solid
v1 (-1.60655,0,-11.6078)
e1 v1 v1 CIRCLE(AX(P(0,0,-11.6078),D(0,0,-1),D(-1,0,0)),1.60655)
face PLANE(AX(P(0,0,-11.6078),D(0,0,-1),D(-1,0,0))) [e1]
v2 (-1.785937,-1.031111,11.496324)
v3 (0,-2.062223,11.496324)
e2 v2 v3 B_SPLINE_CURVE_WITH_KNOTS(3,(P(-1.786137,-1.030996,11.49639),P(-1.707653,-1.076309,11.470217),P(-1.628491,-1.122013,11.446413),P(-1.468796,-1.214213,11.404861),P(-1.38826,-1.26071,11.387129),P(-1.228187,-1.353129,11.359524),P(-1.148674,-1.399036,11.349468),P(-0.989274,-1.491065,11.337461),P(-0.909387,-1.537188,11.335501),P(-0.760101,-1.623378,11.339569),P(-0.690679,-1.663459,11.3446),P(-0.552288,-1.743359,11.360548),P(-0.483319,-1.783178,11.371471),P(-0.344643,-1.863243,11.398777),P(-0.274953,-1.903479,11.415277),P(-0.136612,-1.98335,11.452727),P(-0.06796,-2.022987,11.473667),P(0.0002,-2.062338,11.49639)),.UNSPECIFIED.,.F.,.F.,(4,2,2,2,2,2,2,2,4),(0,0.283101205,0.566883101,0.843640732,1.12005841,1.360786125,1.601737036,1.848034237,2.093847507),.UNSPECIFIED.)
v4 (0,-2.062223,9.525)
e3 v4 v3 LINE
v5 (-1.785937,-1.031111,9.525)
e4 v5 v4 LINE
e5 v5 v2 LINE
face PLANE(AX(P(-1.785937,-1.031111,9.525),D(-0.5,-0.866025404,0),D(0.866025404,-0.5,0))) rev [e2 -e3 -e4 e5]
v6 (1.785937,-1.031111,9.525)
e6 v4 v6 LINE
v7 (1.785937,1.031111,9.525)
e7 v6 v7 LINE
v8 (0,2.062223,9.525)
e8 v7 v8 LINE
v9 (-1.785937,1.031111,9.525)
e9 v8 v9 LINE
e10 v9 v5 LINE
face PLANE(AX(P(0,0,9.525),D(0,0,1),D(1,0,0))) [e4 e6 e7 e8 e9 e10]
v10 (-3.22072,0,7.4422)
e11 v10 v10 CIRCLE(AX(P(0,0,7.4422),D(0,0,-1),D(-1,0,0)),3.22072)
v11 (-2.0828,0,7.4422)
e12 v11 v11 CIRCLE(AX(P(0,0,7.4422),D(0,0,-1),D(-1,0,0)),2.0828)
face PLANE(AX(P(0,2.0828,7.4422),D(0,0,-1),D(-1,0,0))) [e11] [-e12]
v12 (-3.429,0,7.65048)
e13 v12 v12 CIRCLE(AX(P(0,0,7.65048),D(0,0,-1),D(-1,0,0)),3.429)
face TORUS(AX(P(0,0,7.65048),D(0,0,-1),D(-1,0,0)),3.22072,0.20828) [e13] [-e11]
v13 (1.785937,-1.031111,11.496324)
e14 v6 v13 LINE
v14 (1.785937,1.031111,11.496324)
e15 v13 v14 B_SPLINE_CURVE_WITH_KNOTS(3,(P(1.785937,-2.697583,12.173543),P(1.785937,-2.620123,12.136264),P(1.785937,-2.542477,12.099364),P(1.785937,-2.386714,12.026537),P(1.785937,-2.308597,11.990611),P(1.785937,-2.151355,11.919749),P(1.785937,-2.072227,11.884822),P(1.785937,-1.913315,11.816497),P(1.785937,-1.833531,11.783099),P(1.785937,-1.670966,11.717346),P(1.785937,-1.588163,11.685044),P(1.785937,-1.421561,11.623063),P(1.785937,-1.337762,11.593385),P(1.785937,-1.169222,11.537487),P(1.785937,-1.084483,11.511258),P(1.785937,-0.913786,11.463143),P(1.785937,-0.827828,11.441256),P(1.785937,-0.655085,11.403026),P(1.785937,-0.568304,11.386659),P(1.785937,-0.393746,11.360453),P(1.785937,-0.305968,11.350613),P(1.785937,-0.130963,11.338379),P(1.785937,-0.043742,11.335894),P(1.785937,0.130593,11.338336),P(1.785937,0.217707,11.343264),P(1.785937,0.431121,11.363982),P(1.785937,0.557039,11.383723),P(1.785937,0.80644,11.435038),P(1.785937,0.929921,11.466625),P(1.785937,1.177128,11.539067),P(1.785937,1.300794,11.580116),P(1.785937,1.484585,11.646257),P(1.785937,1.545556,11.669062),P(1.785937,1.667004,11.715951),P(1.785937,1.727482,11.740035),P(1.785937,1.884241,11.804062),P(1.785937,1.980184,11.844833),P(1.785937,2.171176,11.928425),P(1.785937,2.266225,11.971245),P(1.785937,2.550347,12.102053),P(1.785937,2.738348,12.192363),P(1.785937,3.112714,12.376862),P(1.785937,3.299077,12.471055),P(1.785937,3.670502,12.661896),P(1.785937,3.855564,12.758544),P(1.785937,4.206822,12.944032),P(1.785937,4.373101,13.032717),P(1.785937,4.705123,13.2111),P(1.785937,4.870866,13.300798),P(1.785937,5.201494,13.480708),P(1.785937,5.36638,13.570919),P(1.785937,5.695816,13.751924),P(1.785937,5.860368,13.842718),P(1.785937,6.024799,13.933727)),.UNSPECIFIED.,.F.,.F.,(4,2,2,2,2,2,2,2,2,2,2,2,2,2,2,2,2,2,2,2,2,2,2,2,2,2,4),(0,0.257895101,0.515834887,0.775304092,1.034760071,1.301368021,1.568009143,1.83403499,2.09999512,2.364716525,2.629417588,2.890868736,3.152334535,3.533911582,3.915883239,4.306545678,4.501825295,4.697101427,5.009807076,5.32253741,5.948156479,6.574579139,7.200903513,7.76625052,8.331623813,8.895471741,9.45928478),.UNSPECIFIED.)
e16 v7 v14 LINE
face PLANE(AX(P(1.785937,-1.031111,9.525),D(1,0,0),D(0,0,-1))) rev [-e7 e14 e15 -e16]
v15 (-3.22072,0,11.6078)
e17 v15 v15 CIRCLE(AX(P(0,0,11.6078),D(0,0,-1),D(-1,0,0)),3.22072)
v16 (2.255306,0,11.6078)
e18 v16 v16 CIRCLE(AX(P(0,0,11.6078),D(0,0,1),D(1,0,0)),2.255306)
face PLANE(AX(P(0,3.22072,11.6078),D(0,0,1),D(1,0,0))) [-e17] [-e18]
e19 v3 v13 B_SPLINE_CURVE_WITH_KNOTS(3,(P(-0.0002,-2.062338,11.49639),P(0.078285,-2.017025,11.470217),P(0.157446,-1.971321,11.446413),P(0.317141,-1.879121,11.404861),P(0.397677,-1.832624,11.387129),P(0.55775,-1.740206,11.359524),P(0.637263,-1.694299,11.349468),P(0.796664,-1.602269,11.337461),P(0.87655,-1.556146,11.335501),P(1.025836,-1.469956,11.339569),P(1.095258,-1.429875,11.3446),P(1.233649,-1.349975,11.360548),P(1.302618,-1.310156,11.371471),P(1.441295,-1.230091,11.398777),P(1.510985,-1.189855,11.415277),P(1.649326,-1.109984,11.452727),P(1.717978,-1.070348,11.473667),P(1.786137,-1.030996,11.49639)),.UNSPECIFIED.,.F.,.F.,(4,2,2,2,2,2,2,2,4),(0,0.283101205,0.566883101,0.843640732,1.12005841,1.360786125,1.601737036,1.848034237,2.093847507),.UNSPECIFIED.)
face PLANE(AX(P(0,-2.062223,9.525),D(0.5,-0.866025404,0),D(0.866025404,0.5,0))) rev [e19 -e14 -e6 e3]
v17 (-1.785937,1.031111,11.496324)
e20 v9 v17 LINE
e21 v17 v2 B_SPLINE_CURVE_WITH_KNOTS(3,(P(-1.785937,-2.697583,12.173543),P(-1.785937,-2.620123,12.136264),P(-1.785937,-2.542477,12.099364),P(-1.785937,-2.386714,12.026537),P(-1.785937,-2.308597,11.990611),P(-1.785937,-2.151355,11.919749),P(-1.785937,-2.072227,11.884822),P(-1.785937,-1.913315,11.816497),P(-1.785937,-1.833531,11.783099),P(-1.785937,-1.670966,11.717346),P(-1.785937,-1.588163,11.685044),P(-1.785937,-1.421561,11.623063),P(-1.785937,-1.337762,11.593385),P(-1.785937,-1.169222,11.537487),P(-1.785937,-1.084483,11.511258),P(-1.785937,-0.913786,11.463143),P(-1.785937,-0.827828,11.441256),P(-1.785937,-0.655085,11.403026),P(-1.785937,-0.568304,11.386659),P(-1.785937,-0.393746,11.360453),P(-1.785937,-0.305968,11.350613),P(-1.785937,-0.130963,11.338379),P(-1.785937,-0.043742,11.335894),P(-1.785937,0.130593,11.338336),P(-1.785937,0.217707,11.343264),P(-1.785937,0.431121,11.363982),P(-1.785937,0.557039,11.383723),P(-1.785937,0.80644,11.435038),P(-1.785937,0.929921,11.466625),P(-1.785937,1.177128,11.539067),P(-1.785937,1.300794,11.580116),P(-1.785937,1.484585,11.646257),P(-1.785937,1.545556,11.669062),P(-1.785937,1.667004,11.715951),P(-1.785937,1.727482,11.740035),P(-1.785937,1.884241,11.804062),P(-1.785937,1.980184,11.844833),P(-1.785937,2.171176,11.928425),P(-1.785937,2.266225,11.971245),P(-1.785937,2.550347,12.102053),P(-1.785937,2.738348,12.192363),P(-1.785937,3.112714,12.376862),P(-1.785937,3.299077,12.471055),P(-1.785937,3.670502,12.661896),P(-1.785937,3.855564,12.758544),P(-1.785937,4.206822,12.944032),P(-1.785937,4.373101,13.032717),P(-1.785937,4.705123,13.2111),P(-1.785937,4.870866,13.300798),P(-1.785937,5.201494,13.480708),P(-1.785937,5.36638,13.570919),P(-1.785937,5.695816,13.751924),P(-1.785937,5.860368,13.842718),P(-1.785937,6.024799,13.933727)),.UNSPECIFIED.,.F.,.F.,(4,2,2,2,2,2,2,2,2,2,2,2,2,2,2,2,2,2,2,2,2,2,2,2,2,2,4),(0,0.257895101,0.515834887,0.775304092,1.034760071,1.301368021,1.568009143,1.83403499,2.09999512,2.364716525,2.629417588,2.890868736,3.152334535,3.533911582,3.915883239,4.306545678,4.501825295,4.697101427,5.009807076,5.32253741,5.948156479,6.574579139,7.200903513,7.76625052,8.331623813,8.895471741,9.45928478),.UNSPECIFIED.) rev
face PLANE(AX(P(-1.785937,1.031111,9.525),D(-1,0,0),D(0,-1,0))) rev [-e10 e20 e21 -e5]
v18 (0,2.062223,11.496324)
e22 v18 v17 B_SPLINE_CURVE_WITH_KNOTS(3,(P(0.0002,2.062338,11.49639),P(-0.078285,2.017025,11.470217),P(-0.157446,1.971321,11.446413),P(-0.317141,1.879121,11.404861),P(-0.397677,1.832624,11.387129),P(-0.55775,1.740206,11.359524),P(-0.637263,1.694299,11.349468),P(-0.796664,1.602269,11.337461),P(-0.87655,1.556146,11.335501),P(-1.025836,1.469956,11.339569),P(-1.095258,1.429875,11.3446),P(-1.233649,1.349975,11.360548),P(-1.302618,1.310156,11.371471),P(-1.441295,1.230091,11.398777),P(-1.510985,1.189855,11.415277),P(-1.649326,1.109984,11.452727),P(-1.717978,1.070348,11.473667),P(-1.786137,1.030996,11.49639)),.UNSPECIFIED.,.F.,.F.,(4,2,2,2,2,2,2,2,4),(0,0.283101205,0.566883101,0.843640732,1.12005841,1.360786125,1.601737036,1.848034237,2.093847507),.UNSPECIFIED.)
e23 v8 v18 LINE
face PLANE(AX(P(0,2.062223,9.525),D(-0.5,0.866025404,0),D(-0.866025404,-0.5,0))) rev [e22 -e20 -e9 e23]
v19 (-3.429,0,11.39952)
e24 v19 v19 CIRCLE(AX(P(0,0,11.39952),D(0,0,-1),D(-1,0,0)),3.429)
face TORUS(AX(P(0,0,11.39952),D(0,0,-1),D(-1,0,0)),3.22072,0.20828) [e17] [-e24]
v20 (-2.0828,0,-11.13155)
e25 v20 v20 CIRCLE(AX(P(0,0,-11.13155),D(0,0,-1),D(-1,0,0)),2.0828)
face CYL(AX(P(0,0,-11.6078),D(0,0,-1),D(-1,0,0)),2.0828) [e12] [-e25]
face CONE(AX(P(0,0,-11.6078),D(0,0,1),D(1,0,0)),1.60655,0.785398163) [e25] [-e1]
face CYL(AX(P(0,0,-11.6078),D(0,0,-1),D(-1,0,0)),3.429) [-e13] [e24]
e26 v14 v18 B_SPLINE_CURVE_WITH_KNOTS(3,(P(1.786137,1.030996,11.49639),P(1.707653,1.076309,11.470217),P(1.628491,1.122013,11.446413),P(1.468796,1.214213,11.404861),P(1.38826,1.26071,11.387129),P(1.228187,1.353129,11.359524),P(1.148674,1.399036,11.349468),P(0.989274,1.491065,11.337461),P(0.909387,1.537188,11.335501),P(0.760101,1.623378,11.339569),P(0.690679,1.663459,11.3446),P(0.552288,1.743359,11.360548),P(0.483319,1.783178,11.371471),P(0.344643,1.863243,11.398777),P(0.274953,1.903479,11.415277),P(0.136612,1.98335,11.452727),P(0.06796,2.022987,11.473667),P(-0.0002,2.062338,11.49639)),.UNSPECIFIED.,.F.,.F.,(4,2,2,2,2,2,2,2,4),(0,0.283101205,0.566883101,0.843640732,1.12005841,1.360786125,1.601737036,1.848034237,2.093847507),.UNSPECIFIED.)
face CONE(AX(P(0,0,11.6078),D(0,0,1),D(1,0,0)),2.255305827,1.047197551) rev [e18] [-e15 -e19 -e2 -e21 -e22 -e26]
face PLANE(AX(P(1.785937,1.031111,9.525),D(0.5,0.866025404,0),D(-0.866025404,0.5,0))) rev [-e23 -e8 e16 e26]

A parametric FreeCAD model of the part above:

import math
import FreeCAD as App
import Part
import Sketcher
Q = App.Units.Quantity

doc = App.newDocument("Part")
body = doc.addObject("PartDesign::Body", "Body")

# Sketch on YZ plane
sketch1 = body.newObject("Sketcher::SketchObject", "Sketch")
sketch1.AttachmentSupport = (doc.getObject("YZ_Plane"), [""])
sketch1.MapMode = "FlatFace"
sketch1.addGeometry([
    Part.LineSegment(App.Vector(0, -11.61, 0), App.Vector(1.61, -11.61, 0)),  # 0
    Part.LineSegment(App.Vector(1.61, -11.61, 0), App.Vector(2.08, -11.13, 0)),  # 1
    Part.LineSegment(App.Vector(2.08, -11.13, 0), App.Vector(2.08, 7.44, 0)),  # 2
    Part.LineSegment(App.Vector(2.08, 7.44, 0), App.Vector(3.22, 7.44, 0)),  # 3
    Part.ArcOfCircle(Part.Circle(App.Vector(3.22, 7.65, 0), App.Vector(0, 0, 1), 0.21), math.radians(-90), math.radians(0)),  # 4
    Part.LineSegment(App.Vector(3.43, 7.65, 0), App.Vector(3.43, 11.4, 0)),  # 5
    Part.ArcOfCircle(Part.Circle(App.Vector(3.22, 11.4, 0), App.Vector(0, 0, 1), 0.21), math.radians(0), math.radians(90)),  # 6
    Part.LineSegment(App.Vector(3.22, 11.61, 0), App.Vector(0, 11.61, 0)),  # 7
    Part.LineSegment(App.Vector(0, 11.61, 0), App.Vector(0, -11.61, 0)),  # 8
], False)
sketch1.addConstraint([
    Sketcher.Constraint("Coincident", 0, 2, 1, 1),
    Sketcher.Constraint("Coincident", 1, 2, 2, 1),
    Sketcher.Constraint("Coincident", 2, 2, 3, 1),
    Sketcher.Constraint("Tangent", 3, 2, 4, 1),
    Sketcher.Constraint("Tangent", 4, 2, 5, 1),
    Sketcher.Constraint("Tangent", 5, 2, 6, 1),
    Sketcher.Constraint("Tangent", 6, 2, 7, 1),
    Sketcher.Constraint("Coincident", 7, 2, 8, 1),
    Sketcher.Constraint("Coincident", 8, 2, 0, 1),
    Sketcher.Constraint("Horizontal", 0),
    Sketcher.Constraint("Vertical", 2),
    Sketcher.Constraint("Horizontal", 3),
    Sketcher.Constraint("Vertical", 5),
    Sketcher.Constraint("Horizontal", 7),
    Sketcher.Constraint("Vertical", 8),
    Sketcher.Constraint("Equal", 4, 6),
    Sketcher.Constraint("Symmetric", 7, 2, 8, 2, -1, 1),
    Sketcher.Constraint("Angle", 1, Q("45 deg")),
    Sketcher.Constraint("Radius", 4, Q("0.0082 in")),
    Sketcher.Constraint("DistanceY", 8, 2, 8, 1, Q("0.914 in")),
    Sketcher.Constraint("DistanceY", 0, 2, 2, 2, Q("0.75 in")),
    Sketcher.Constraint("DistanceX", 3, 1, 3, 2, Q("0.0448 in")),
    Sketcher.Constraint("DistanceX", 7, 2, 7, 1, Q("0.1268 in")),
    Sketcher.Constraint("DistanceX", 0, 1, 0, 2, Q("1.60655 mm")),
])
revolution = body.newObject("PartDesign::Revolution", "Revolution")
revolution.Profile = sketch1
revolution.ReferenceAxis = (sketch1, ["V_Axis"])
revolution.Angle = 360

# Sketch on XY plane
sketch2 = body.newObject("Sketcher::SketchObject", "Sketch001")
sketch2.AttachmentSupport = (doc.getObject("XY_Plane"), [""])
sketch2.MapMode = "FlatFace"
sketch2.AttachmentOffset = App.Placement(App.Vector(0, 0, 0.457 * 25.4), App.Rotation())
sketch2.addGeometry([
    Part.LineSegment(App.Vector(-1.8, 1, 0), App.Vector(-1.8, -1, 0)),  # 0
    Part.LineSegment(App.Vector(-1.8, -1, 0), App.Vector(0, -2.1, 0)),  # 1
    Part.LineSegment(App.Vector(0, -2.1, 0), App.Vector(1.8, -1, 0)),  # 2
    Part.LineSegment(App.Vector(1.8, -1, 0), App.Vector(1.8, 1, 0)),  # 3
    Part.LineSegment(App.Vector(1.8, 1, 0), App.Vector(0, 2.1, 0)),  # 4
    Part.LineSegment(App.Vector(0, 2.1, 0), App.Vector(-1.8, 1, 0)),  # 5
], False)
sketch2.addConstraint([
    Sketcher.Constraint("Coincident", 0, 2, 1, 1),
    Sketcher.Constraint("Coincident", 1, 2, 2, 1),
    Sketcher.Constraint("Coincident", 2, 2, 3, 1),
    Sketcher.Constraint("Coincident", 3, 2, 4, 1),
    Sketcher.Constraint("Coincident", 4, 2, 5, 1),
    Sketcher.Constraint("Coincident", 5, 2, 0, 1),
    Sketcher.Constraint("Vertical", 0),
    Sketcher.Constraint("Vertical", 3),
    Sketcher.Constraint("Symmetric", 0, 2, 3, 2, -1, 1),
    Sketcher.Constraint("Symmetric", 1, 2, 4, 2, -1, 1),
    Sketcher.Constraint("PointOnObject", 1, 2, -2),
    Sketcher.Constraint("Parallel", 2, 5),
    Sketcher.Constraint("Horizontal", 0, 2, 2, 2),
    Sketcher.Constraint("Angle", 1, Q("-30 deg")),
    Sketcher.Constraint("DistanceX", 0, 2, 2, 2, Q("0.140625 in")),
    Sketcher.Constraint("DistanceY", 0, 2, 0, 1, Q("2.062223 mm")),
])
pocket1 = body.newObject("PartDesign::Pocket", "Pocket")
pocket1.Profile = sketch2
pocket1.Length = Q("0.082 in")

# Sketch on YZ plane
sketch3 = body.newObject("Sketcher::SketchObject", "Sketch002")
sketch3.AttachmentSupport = (doc.getObject("YZ_Plane"), [""])
sketch3.MapMode = "FlatFace"
sketch3.addGeometry([
    Part.LineSegment(App.Vector(0, 11.6, 0), App.Vector(-2.3, 11.6, 0)),
    Part.LineSegment(App.Vector(-2.3, 11.6, 0), App.Vector(0, 10.3, 0)),
    Part.LineSegment(App.Vector(0, 10.3, 0), App.Vector(0, 11.6, 0)),
], False)
sketch3.addConstraint([
    Sketcher.Constraint("Coincident", 0, 2, 1, 1),
    Sketcher.Constraint("Coincident", 1, 2, 2, 1),
    Sketcher.Constraint("Coincident", 2, 2, 0, 1),
    Sketcher.Constraint("Horizontal", 0),
    Sketcher.Constraint("Vertical", 2),
    Sketcher.Constraint("PointOnObject", 1, 2, -2),
    Sketcher.Constraint("Angle", 1, Q("-30 deg")),
    Sketcher.Constraint("DistanceY", -1, 1, 0, 2, Q("0.457 in")),
    Sketcher.Constraint("DistanceY", 2, 1, 2, 2, Q("1.302101 mm")),
])
groove = body.newObject("PartDesign::Groove", "Groove")
groove.Profile = sketch3
groove.ReferenceAxis = (sketch3, ["V_Axis"])
groove.Angle = 360

doc.recompute()
